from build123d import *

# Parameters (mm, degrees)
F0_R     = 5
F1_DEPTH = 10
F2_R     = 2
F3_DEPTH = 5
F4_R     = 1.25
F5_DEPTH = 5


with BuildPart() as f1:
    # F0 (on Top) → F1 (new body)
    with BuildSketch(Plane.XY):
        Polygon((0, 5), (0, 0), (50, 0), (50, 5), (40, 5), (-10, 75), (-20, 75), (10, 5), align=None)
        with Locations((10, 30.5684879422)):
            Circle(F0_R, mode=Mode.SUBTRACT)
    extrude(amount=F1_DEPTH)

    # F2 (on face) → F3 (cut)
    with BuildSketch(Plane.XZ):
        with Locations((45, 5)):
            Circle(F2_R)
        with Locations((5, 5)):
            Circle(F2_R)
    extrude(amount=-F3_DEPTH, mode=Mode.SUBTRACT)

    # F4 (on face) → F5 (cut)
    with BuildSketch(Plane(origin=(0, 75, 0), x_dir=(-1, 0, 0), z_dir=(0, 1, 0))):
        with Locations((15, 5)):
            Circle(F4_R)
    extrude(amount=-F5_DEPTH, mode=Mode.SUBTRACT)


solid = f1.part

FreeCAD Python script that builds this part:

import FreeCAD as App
import Part
import Sketcher

doc = App.newDocument("Part")
body = doc.addObject("PartDesign::Body", "Body")

sketch1 = body.newObject("Sketcher::SketchObject", "Sketch")
sketch1.AttachmentSupport = (doc.getObject("XY_Plane"), [""])
sketch1.MapMode = "FlatFace"
sketch1.addGeometry(Part.LineSegment(App.Vector(0, 5, 0), App.Vector(0, 0, 0)), False)
sketch1.addGeometry(Part.LineSegment(App.Vector(0, 0, 0), App.Vector(50, 0, 0)), False)
sketch1.addGeometry(Part.LineSegment(App.Vector(50, 0, 0), App.Vector(50, 5, 0)), False)
sketch1.addGeometry(Part.LineSegment(App.Vector(50, 5, 0), App.Vector(40, 5, 0)), False)
sketch1.addGeometry(Part.LineSegment(App.Vector(40, 5, 0), App.Vector(-10, 75, 0)), False)
sketch1.addGeometry(Part.LineSegment(App.Vector(-10, 75, 0), App.Vector(-20, 75, 0)), False)
sketch1.addGeometry(Part.LineSegment(App.Vector(-20, 75, 0), App.Vector(10, 5, 0)), False)
sketch1.addGeometry(Part.LineSegment(App.Vector(10, 5, 0), App.Vector(0, 5, 0)), False)
sketch1.addGeometry(Part.Circle(App.Vector(10, 31, 0), App.Vector(0, 0, 1), 5), False)
sketch1.addConstraint(Sketcher.Constraint("Coincident", 0, 2, 1, 1))
sketch1.addConstraint(Sketcher.Constraint("Coincident", 1, 2, 2, 1))
sketch1.addConstraint(Sketcher.Constraint("Coincident", 2, 2, 3, 1))
sketch1.addConstraint(Sketcher.Constraint("Coincident", 3, 2, 4, 1))
sketch1.addConstraint(Sketcher.Constraint("Coincident", 4, 2, 5, 1))
sketch1.addConstraint(Sketcher.Constraint("Coincident", 5, 2, 6, 1))
sketch1.addConstraint(Sketcher.Constraint("Coincident", 6, 2, 7, 1))
sketch1.addConstraint(Sketcher.Constraint("Coincident", 7, 2, 0, 1))
sketch1.addConstraint(Sketcher.Constraint("Vertical", 0))
sketch1.addConstraint(Sketcher.Constraint("Horizontal", 1))
sketch1.addConstraint(Sketcher.Constraint("Vertical", 2))
sketch1.addConstraint(Sketcher.Constraint("Horizontal", 3))
sketch1.addConstraint(Sketcher.Constraint("Horizontal", 5))
sketch1.addConstraint(Sketcher.Constraint("Horizontal", 7))
sketch1.addConstraint(Sketcher.Constraint("Coincident", 0, 2, -1, 1))
sketch1.addConstraint(Sketcher.Constraint("Horizontal", 3, 2, 6, 2))
sketch1.addConstraint(Sketcher.Constraint("Vertical", 8, 3, 6, 2))
sketch1.addConstraint(Sketcher.Constraint("Equal", 3, 5))
sketch1.addConstraint(Sketcher.Constraint("Equal", 5, 7))
sketch1.addConstraint(Sketcher.Constraint("Diameter", 8, 10.0))
sketch1.addConstraint(Sketcher.Constraint("DistanceX", 1, 1, 1, 2, 50.0))
sketch1.addConstraint(Sketcher.Constraint("DistanceX", 3, 2, 3, 1, 10.0))
sketch1.addConstraint(Sketcher.Constraint("DistanceY", 0, 2, 0, 1, 5.0))
sketch1.addConstraint(Sketcher.Constraint("DistanceX", 4, 2, -1, 1, 10.0))
sketch1.addConstraint(Sketcher.Constraint("DistanceY", -1, 1, 4, 2, 75.0))
sketch1.addConstraint(Sketcher.Constraint("DistanceY", -1, 1, 8, 3, 30.568488))
pad1 = body.newObject("PartDesign::Pad", "Pad")
pad1.Profile = sketch1
pad1.Length = 10

sketch2 = body.newObject("Sketcher::SketchObject", "Sketch001")
sketch2.AttachmentSupport = (doc.getObject("XZ_Plane"), [""])
sketch2.MapMode = "FlatFace"
sketch2.addGeometry(Part.Circle(App.Vector(45, 5, 0), App.Vector(0, 0, 1), 2), False)
sketch2.addGeometry(Part.Circle(App.Vector(5, 5, 0), App.Vector(0, 0, 1), 2), False)
sketch2.addConstraint(Sketcher.Constraint("Equal", 0, 1))
sketch2.addConstraint(Sketcher.Constraint("Horizontal", 0, 3, 1, 3))
sketch2.addConstraint(Sketcher.Constraint("Diameter", 0, 4.0))
sketch2.addConstraint(Sketcher.Constraint("DistanceX", -1, 1, 0, 3, 45.0))
sketch2.addConstraint(Sketcher.Constraint("DistanceY", -1, 1, 0, 3, 5.0))
sketch2.addConstraint(Sketcher.Constraint("DistanceX", -1, 1, 1, 3, 5.0))
pocket1 = body.newObject("PartDesign::Pocket", "Pocket")
pocket1.Profile = sketch2
pocket1.Length = 5

sketch3 = body.newObject("Sketcher::SketchObject", "Sketch002")
sketch3.AttachmentSupport = (doc.getObject("XZ_Plane"), [""])
sketch3.MapMode = "FlatFace"
sketch3.AttachmentOffset = App.Placement(App.Vector(0, 0, -75), App.Rotation())
sketch3.addGeometry(Part.Circle(App.Vector(-15, 5, 0), App.Vector(0, 0, 1), 1.2), False)
sketch3.addConstraint(Sketcher.Constraint("Diameter", 0, 2.5))
sketch3.addConstraint(Sketcher.Constraint("DistanceX", 0, 3, -1, 1, 15.0))
sketch3.addConstraint(Sketcher.Constraint("DistanceY", -1, 1, 0, 3, 5.0))
pocket2 = body.newObject("PartDesign::Pocket", "Pocket001")
pocket2.Profile = sketch3
pocket2.Length = 5
pocket2.Reversed = True

doc.recompute()
